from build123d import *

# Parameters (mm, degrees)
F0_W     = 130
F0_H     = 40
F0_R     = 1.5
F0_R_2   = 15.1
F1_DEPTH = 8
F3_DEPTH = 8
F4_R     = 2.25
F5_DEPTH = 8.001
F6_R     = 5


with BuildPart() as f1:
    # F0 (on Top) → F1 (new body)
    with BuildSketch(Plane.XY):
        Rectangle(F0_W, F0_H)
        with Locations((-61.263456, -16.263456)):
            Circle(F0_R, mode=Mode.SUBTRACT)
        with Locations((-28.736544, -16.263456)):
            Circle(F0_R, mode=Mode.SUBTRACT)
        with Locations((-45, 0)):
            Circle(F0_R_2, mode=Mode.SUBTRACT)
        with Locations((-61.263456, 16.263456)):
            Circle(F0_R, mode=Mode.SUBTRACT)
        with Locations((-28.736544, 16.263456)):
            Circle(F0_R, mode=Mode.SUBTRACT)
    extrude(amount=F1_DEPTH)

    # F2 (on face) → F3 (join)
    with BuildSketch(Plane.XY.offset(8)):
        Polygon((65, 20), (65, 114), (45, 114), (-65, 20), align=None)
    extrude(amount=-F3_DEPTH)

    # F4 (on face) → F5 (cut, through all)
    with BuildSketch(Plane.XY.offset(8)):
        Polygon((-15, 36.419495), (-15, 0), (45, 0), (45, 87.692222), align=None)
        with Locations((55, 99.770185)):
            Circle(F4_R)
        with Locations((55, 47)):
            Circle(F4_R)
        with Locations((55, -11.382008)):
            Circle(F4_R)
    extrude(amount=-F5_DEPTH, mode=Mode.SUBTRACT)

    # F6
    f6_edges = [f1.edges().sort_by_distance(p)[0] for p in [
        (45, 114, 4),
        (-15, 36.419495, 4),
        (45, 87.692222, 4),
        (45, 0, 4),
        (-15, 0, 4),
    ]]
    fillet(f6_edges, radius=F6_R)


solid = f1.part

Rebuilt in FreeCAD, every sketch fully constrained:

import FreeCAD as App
import Part
import Sketcher
Q = App.Units.Quantity


def edges_at(feature, points):
    """Names of the edges that pass closest to the given points."""
    edges = feature.Shape.Edges
    near = lambda p: min(range(len(edges)), key=lambda i: edges[i].distToShape(Part.Vertex(*p))[0])
    return sorted({f"Edge{near(p) + 1}" for p in points})


def add_polygon(sketch, points):
    """Adds a closed chain of lines whose ends are joined by coincident constraints."""
    first, n = sketch.GeometryCount, len(points)
    for a, b in zip(points, points[1:] + points[:1]):
        sketch.addGeometry(Part.LineSegment(App.Vector(*a, 0), App.Vector(*b, 0)), False)
    for i in range(n):
        sketch.addConstraint(Sketcher.Constraint("Coincident", first + i, 2, first + (i + 1) % n, 1))

doc = App.newDocument("Part")
params = doc.addObject("Spreadsheet::Sheet", "Params")
for row, (alias, value) in enumerate([
    ("sketch1_diameter", "3 mm"),
    ("sketch1_diameter2", "30.2 mm"),
    ("sketch1_width", "130 mm"),
    ("sketch1_height", "40 mm"),
    ("pad1_length", "8 mm"),
    ("sketch2_width", "20 mm"),
    ("sketch2_width2", "130 mm"),
    ("sketch2_height", "94 mm"),
    ("pad2_length", "8 mm"),
    ("sketch3_diameter", "4.5 mm"),
    ("sketch3_width", "60 mm"),
    ("fillet_radius", "5 mm"),
], start=1):
    params.set(f"A{row}", alias)
    params.set(f"B{row}", "=" + value)
    params.setAlias(f"B{row}", alias)

body = doc.addObject("PartDesign::Body", "Body")

# Sketch on XY plane
sketch1 = doc.addObject("Sketcher::SketchObject", "Sketch")
body.addObject(sketch1)
sketch1.AttachmentSupport = (doc.XY_Plane, [""])
sketch1.MapMode = "FlatFace"
add_polygon(sketch1, [(-65, 20), (-65, -20), (65, -20), (65, 20)])  # lines 0-3
sketch1.addGeometry(Part.Circle(App.Vector(-61.3, -16.3, 0), App.Vector(0, 0, 1), 1.5), False)  # 4
sketch1.addGeometry(Part.Circle(App.Vector(-28.7, -16.3, 0), App.Vector(0, 0, 1), 1.5), False)  # 5
sketch1.addGeometry(Part.Circle(App.Vector(-61.3, 16.3, 0), App.Vector(0, 0, 1), 1.5), False)  # 6
sketch1.addGeometry(Part.Circle(App.Vector(-45, 0, 0), App.Vector(0, 0, 1), 15.1), False)  # 7
sketch1.addGeometry(Part.Circle(App.Vector(-28.7, 16.3, 0), App.Vector(0, 0, 1), 1.5), False)  # 8
sketch1.addConstraint(Sketcher.Constraint("Vertical", 0))
sketch1.addConstraint(Sketcher.Constraint("Horizontal", 1))
sketch1.addConstraint(Sketcher.Constraint("Vertical", 2))
sketch1.addConstraint(Sketcher.Constraint("Horizontal", 3))
sketch1.addConstraint(Sketcher.Constraint("Equal", 4, 5))
sketch1.addConstraint(Sketcher.Constraint("Equal", 5, 6))
sketch1.addConstraint(Sketcher.Constraint("Equal", 6, 8))
sketch1.addConstraint(Sketcher.Constraint("Symmetric", 0, 2, 2, 2, -1, 1))
sketch1.addConstraint(Sketcher.Constraint("Symmetric", 4, 3, 6, 3, -1))
sketch1.addConstraint(Sketcher.Constraint("Symmetric", 5, 3, 8, 3, -1))
sketch1.addConstraint(Sketcher.Constraint("PointOnObject", 7, 3, -1))
sketch1.addConstraint(Sketcher.Constraint("Horizontal", 4, 3, 5, 3))
sketch1.addConstraint(Sketcher.Constraint("Diameter", 4, Q("3 mm")))
sketch1.addConstraint(Sketcher.Constraint("Diameter", 7, Q("30.2 mm")))
sketch1.addConstraint(Sketcher.Constraint("DistanceX", 1, 1, 1, 2, Q("130 mm")))
sketch1.addConstraint(Sketcher.Constraint("DistanceY", 0, 2, 0, 1, Q("40 mm")))
sketch1.addConstraint(Sketcher.Constraint("DistanceX", 7, 3, -1, 1, Q("45 mm")))
sketch1.addConstraint(Sketcher.Constraint("DistanceX", 4, 3, 5, 3, Q("32.526912 mm")))
sketch1.addConstraint(Sketcher.Constraint("DistanceX", 4, 3, -1, 1, Q("61.263456 mm")))
sketch1.addConstraint(Sketcher.Constraint("DistanceY", 4, 3, -1, 1, Q("16.263456 mm")))
sketch1.setExpression("Constraints[16]", "Params.sketch1_diameter")
sketch1.setExpression("Constraints[17]", "Params.sketch1_diameter2")
sketch1.setExpression("Constraints[18]", "Params.sketch1_width")
sketch1.setExpression("Constraints[19]", "Params.sketch1_height")
pad1 = doc.addObject("PartDesign::Pad", "Pad")
body.addObject(pad1)
pad1.Profile = sketch1
pad1.setExpression("Length", "Params.pad1_length")

# Sketch on XY plane
sketch2 = doc.addObject("Sketcher::SketchObject", "Sketch001")
body.addObject(sketch2)
sketch2.AttachmentSupport = (doc.XY_Plane, [""])
sketch2.MapMode = "FlatFace"
sketch2.AttachmentOffset = App.Placement(App.Vector(0, 0, 8), App.Rotation())
add_polygon(sketch2, [(65, 20), (65, 114), (45, 114), (-65, 20)])  # lines 0-3
sketch2.addConstraint(Sketcher.Constraint("Vertical", 0))
sketch2.addConstraint(Sketcher.Constraint("Horizontal", 1))
sketch2.addConstraint(Sketcher.Constraint("Horizontal", 3))
sketch2.addConstraint(Sketcher.Constraint("DistanceX", 1, 2, 1, 1, Q("20 mm")))
sketch2.addConstraint(Sketcher.Constraint("DistanceX", 3, 1, 3, 2, Q("130 mm")))
sketch2.addConstraint(Sketcher.Constraint("DistanceY", 0, 1, 0, 2, Q("94 mm")))
sketch2.addConstraint(Sketcher.Constraint("DistanceX", -1, 1, 0, 2, Q("65 mm")))
sketch2.addConstraint(Sketcher.Constraint("DistanceY", -1, 1, 0, 2, Q("114 mm")))
sketch2.setExpression("Constraints[7]", "Params.sketch2_width")
sketch2.setExpression("Constraints[8]", "Params.sketch2_width2")
sketch2.setExpression("Constraints[9]", "Params.sketch2_height")
pad2 = doc.addObject("PartDesign::Pad", "Pad001")
body.addObject(pad2)
pad2.Profile = sketch2
pad2.setExpression("Length", "Params.pad2_length")
pad2.Reversed = True

# Sketch on XY plane
sketch3 = doc.addObject("Sketcher::SketchObject", "Sketch002")
body.addObject(sketch3)
sketch3.AttachmentSupport = (doc.XY_Plane, [""])
sketch3.MapMode = "FlatFace"
sketch3.AttachmentOffset = App.Placement(App.Vector(0, 0, 8), App.Rotation())
add_polygon(sketch3, [(-15, 36.4), (-15, 0), (45, 0), (45, 87.7)])  # lines 0-3
sketch3.addGeometry(Part.Circle(App.Vector(55, 99.8, 0), App.Vector(0, 0, 1), 2.2), False)  # 4
sketch3.addGeometry(Part.Circle(App.Vector(55, 47, 0), App.Vector(0, 0, 1), 2.2), False)  # 5
sketch3.addGeometry(Part.Circle(App.Vector(55, -11.4, 0), App.Vector(0, 0, 1), 2.2), False)  # 6
sketch3.addConstraint(Sketcher.Constraint("Vertical", 0))
sketch3.addConstraint(Sketcher.Constraint("Horizontal", 1))
sketch3.addConstraint(Sketcher.Constraint("Vertical", 2))
sketch3.addConstraint(Sketcher.Constraint("Equal", 4, 5))
sketch3.addConstraint(Sketcher.Constraint("Equal", 5, 6))
sketch3.addConstraint(Sketcher.Constraint("PointOnObject", 0, 2, -1))
sketch3.addConstraint(Sketcher.Constraint("Vertical", 4, 3, 5, 3))
sketch3.addConstraint(Sketcher.Constraint("Vertical", 5, 3, 6, 3))
sketch3.addConstraint(Sketcher.Constraint("Diameter", 4, Q("4.5 mm")))
sketch3.addConstraint(Sketcher.Constraint("DistanceX", 1, 1, 1, 2, Q("60 mm")))
sketch3.addConstraint(Sketcher.Constraint("DistanceX", -1, 1, 4, 3, Q("55 mm")))
sketch3.addConstraint(Sketcher.Constraint("DistanceY", -1, 1, 5, 3, Q("47 mm")))
sketch3.addConstraint(Sketcher.Constraint("DistanceX", 0, 2, -1, 1, Q("15 mm")))
sketch3.addConstraint(Sketcher.Constraint("DistanceY", 2, 1, 2, 2, Q("87.692222 mm")))
sketch3.addConstraint(Sketcher.Constraint("DistanceY", 0, 2, 0, 1, Q("36.419495 mm")))
sketch3.addConstraint(Sketcher.Constraint("DistanceY", 6, 3, -1, 1, Q("11.382008 mm")))
sketch3.addConstraint(Sketcher.Constraint("DistanceY", -1, 1, 4, 3, Q("99.770185 mm")))
sketch3.setExpression("Constraints[12]", "Params.sketch3_diameter")
sketch3.setExpression("Constraints[13]", "Params.sketch3_width")
pocket1 = doc.addObject("PartDesign::Pocket", "Pocket")
body.addObject(pocket1)
pocket1.Profile = sketch3
pocket1.Type = "ThroughAll"
doc.recompute()

fillet = doc.addObject("PartDesign::Fillet", "Fillet")
body.addObject(fillet)
fillet.Base = (pocket1, edges_at(pocket1, [
    (45, 114, 4),
    (-15, 36.419, 4),
    (45, 87.692, 4),
    (45, 0, 4),
    (-15, 0, 4),
]))
fillet.setExpression("Radius", "Params.fillet_radius")

doc.recompute()
